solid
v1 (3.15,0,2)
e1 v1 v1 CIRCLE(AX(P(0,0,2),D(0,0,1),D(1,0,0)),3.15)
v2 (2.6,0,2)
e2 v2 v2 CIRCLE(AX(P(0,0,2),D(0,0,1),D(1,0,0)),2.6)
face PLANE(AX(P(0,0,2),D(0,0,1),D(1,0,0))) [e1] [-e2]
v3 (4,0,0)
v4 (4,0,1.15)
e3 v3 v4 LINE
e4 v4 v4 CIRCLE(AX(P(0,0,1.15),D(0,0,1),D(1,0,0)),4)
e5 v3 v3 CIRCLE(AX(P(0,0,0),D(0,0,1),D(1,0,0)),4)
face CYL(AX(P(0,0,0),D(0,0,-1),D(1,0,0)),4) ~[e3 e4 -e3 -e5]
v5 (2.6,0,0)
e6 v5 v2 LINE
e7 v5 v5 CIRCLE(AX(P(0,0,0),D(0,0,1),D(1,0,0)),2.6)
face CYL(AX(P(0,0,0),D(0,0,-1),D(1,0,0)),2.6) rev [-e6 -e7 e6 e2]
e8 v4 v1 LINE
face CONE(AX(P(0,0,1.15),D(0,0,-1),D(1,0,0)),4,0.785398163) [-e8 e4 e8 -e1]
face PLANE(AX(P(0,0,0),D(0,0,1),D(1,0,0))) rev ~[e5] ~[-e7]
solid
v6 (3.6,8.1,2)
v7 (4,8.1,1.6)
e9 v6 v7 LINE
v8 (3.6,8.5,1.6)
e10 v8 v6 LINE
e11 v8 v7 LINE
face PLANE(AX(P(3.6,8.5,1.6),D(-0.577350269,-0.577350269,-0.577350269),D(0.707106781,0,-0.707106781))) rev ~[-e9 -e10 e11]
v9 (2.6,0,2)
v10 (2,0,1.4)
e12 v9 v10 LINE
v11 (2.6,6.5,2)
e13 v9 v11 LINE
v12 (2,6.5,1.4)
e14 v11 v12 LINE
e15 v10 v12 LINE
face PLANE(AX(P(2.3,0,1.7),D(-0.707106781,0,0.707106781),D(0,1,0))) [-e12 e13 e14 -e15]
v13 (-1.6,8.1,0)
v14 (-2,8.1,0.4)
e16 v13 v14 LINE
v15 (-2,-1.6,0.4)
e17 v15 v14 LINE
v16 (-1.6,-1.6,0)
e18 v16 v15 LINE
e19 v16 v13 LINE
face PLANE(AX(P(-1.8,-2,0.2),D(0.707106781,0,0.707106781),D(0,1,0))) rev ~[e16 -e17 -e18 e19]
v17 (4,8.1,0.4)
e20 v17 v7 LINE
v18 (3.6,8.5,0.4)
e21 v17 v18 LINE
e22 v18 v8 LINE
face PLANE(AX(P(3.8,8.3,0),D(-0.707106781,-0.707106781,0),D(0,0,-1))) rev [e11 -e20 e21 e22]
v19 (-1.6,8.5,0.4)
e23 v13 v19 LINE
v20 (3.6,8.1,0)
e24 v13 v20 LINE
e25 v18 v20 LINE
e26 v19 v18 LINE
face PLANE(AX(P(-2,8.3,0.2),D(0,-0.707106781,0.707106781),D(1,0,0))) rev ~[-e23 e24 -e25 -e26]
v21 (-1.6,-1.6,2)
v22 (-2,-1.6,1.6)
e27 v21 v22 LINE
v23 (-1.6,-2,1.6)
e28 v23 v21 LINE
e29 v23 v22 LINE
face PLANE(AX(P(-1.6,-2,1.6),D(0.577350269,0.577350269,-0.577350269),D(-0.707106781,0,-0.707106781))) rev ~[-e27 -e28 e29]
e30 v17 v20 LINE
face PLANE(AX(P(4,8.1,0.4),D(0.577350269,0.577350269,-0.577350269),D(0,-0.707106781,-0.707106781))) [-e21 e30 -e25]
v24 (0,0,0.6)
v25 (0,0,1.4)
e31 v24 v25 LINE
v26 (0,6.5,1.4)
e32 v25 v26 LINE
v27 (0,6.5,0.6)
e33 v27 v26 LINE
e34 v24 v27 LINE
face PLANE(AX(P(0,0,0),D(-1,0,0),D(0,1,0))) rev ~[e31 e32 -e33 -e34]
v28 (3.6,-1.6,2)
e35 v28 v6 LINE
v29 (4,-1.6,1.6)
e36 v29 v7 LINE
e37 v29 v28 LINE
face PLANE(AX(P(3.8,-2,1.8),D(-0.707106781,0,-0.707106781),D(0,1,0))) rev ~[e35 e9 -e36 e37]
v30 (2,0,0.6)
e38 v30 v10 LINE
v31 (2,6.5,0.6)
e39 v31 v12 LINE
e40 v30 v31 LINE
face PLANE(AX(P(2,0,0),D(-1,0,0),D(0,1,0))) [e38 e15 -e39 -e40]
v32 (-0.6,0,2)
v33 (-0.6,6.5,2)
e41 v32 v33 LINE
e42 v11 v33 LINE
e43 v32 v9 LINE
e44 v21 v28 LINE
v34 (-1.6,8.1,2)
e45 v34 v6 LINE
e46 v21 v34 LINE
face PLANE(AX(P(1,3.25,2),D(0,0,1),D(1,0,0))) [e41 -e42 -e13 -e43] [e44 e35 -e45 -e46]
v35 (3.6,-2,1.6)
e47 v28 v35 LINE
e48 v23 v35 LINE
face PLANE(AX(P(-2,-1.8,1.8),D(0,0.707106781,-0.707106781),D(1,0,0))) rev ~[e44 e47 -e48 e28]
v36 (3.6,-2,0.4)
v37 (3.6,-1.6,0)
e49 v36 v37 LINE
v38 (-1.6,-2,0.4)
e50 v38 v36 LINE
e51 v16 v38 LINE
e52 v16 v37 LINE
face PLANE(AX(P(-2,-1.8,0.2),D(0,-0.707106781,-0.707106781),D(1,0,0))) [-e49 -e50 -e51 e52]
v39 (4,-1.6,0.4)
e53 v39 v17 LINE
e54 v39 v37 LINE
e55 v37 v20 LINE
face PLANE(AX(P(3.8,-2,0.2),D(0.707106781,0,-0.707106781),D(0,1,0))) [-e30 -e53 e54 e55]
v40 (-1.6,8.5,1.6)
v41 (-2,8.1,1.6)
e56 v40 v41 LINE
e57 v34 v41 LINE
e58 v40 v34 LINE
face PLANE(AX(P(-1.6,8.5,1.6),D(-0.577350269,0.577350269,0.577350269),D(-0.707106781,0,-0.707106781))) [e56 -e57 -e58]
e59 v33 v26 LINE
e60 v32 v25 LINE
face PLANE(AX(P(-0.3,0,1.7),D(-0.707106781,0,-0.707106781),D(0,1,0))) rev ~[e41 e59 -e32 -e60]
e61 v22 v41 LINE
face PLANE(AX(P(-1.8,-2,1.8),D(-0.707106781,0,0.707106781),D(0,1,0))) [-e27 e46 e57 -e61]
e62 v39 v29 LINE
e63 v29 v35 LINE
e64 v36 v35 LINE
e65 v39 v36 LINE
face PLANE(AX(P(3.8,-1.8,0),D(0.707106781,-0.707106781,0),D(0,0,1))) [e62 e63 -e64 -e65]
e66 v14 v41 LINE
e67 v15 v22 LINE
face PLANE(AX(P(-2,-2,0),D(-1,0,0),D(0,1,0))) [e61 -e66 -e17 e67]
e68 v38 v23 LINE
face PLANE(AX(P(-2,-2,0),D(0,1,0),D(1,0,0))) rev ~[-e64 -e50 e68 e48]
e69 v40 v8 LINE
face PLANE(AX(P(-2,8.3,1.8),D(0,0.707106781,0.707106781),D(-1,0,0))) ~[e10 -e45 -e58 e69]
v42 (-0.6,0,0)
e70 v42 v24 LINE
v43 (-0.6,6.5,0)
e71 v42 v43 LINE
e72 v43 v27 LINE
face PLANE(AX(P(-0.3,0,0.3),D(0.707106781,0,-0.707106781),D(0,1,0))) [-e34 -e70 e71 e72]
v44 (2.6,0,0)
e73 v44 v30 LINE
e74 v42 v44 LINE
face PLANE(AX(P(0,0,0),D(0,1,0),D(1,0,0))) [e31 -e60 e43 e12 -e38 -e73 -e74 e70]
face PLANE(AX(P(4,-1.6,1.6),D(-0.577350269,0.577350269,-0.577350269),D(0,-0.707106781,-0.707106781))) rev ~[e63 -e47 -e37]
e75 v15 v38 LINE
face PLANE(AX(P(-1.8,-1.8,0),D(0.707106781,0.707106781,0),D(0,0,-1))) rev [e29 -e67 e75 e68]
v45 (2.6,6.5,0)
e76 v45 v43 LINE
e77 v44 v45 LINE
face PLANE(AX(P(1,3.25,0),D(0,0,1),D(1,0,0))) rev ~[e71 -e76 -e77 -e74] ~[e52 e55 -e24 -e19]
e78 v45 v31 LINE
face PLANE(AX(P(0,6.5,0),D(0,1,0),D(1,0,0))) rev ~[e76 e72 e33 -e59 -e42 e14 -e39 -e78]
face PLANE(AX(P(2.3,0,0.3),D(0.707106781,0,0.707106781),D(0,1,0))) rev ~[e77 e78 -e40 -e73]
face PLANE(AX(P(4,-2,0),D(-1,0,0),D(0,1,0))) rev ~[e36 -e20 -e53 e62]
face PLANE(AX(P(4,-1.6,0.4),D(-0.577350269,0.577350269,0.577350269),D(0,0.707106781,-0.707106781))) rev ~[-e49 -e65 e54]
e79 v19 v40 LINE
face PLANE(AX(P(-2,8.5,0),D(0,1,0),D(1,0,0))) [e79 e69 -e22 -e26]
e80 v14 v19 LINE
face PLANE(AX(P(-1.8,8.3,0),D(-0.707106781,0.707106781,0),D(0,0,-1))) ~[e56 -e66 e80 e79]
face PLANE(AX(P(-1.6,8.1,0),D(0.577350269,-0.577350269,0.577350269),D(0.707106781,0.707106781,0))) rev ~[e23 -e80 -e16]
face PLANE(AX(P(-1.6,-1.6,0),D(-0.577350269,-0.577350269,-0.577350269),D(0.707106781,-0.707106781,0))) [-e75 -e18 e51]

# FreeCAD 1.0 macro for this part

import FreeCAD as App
import Part
import Sketcher
Q = App.Units.Quantity


def edges_at(feature, points):
    """Names of the edges that pass closest to the given points."""
    edges = feature.Shape.Edges
    near = lambda p: min(range(len(edges)), key=lambda i: edges[i].distToShape(Part.Vertex(*p))[0])
    return sorted({f"Edge{near(p) + 1}" for p in points})

doc = App.newDocument("Part")
params = doc.addObject("Spreadsheet::Sheet", "Params")
for row, (alias, value) in enumerate([
    ("sketch1_diameter", "8 mm"),
    ("sketch1_diameter2", "5.2 mm"),
    ("pad1_length", "2 mm"),
    ("chamfer_size", "0.85 mm"),
    ("sketch2_width", "2 mm"),
    ("sketch2_height", "6.5 mm"),
    ("pad2_length", "2 mm"),
    ("sketch3_width", "6 mm"),
    ("sketch3_height", "10.5 mm"),
    ("pad3_length", "2 mm"),
    ("chamfer2_size", "0.6 mm"),
    ("chamfer3_size", "0.4 mm"),
], start=1):
    params.set(f"A{row}", alias)
    params.set(f"B{row}", "=" + value)
    params.setAlias(f"B{row}", alias)

body = doc.addObject("PartDesign::Body", "Body")

# Sketch on XY plane
sketch1 = doc.addObject("Sketcher::SketchObject", "Sketch")
body.addObject(sketch1)
sketch1.AttachmentSupport = (doc.XY_Plane, [""])
sketch1.MapMode = "FlatFace"
sketch1.addGeometry([
    Part.Circle(App.Vector(0, 0, 0), App.Vector(0, 0, 1), 4),
    Part.Circle(App.Vector(0, 0, 0), App.Vector(0, 0, 1), 2.6),
], False)
sketch1.addConstraint([
    Sketcher.Constraint("Coincident", 0, 3, -1, 1),
    Sketcher.Constraint("Coincident", 1, 3, -1, 1),
    Sketcher.Constraint("Diameter", 0, Q("8 mm")),
    Sketcher.Constraint("Diameter", 1, Q("5.2 mm")),
])
sketch1.setExpression("Constraints[2]", "Params.sketch1_diameter")
sketch1.setExpression("Constraints[3]", "Params.sketch1_diameter2")
pad1 = doc.addObject("PartDesign::Pad", "Pad")
body.addObject(pad1)
pad1.Profile = sketch1
pad1.setExpression("Length", "Params.pad1_length")
doc.recompute()

chamfer = doc.addObject("PartDesign::Chamfer", "Chamfer")
body.addObject(chamfer)
chamfer.Base = (pad1, edges_at(pad1, [(-4, 0, 2)]))
chamfer.setExpression("Size", "Params.chamfer_size")
body2 = doc.addObject("PartDesign::Body", "Body001")

# Sketch on XY plane
sketch2 = doc.addObject("Sketcher::SketchObject", "Sketch001")
body2.addObject(sketch2)
sketch2.AttachmentSupport = (doc.getObject("XY_Plane001"), [""])
sketch2.MapMode = "FlatFace"
sketch2.addGeometry([
    Part.LineSegment(App.Vector(0, 6.5, 0), App.Vector(0, 0, 0)),
    Part.LineSegment(App.Vector(0, 0, 0), App.Vector(2, 0, 0)),
    Part.LineSegment(App.Vector(2, 0, 0), App.Vector(2, 6.5, 0)),
    Part.LineSegment(App.Vector(2, 6.5, 0), App.Vector(0, 6.5, 0)),
], False)
sketch2.addConstraint([
    Sketcher.Constraint("Coincident", 0, 2, 1, 1),
    Sketcher.Constraint("Coincident", 1, 2, 2, 1),
    Sketcher.Constraint("Coincident", 2, 2, 3, 1),
    Sketcher.Constraint("Coincident", 3, 2, 0, 1),
    Sketcher.Constraint("Vertical", 0),
    Sketcher.Constraint("Horizontal", 1),
    Sketcher.Constraint("Vertical", 2),
    Sketcher.Constraint("Horizontal", 3),
    Sketcher.Constraint("Coincident", 0, 2, -1, 1),
    Sketcher.Constraint("DistanceX", 1, 1, 1, 2, Q("2 mm")),
    Sketcher.Constraint("DistanceY", 0, 2, 0, 1, Q("6.5 mm")),
])
sketch2.setExpression("Constraints[9]", "Params.sketch2_width")
sketch2.setExpression("Constraints[10]", "Params.sketch2_height")
pad2 = doc.addObject("PartDesign::Pad", "Pad001")
body2.addObject(pad2)
pad2.Profile = sketch2
pad2.setExpression("Length", "Params.pad2_length")
body3 = doc.addObject("PartDesign::Body", "Body002")

# Sketch on XY plane
sketch3 = doc.addObject("Sketcher::SketchObject", "Sketch002")
body3.addObject(sketch3)
sketch3.AttachmentSupport = (doc.getObject("XY_Plane002"), [""])
sketch3.MapMode = "FlatFace"
sketch3.addGeometry([
    Part.LineSegment(App.Vector(-2, 8, 0), App.Vector(-2, -2, 0)),
    Part.LineSegment(App.Vector(-2, -2, 0), App.Vector(4, -2, 0)),
    Part.LineSegment(App.Vector(4, -2, 0), App.Vector(4, 8, 0)),
    Part.LineSegment(App.Vector(4, 8, 0), App.Vector(-2, 8, 0)),
], False)
sketch3.addConstraint([
    Sketcher.Constraint("Coincident", 0, 2, 1, 1),
    Sketcher.Constraint("Coincident", 1, 2, 2, 1),
    Sketcher.Constraint("Coincident", 2, 2, 3, 1),
    Sketcher.Constraint("Coincident", 3, 2, 0, 1),
    Sketcher.Constraint("Vertical", 0),
    Sketcher.Constraint("Horizontal", 1),
    Sketcher.Constraint("Vertical", 2),
    Sketcher.Constraint("Horizontal", 3),
    Sketcher.Constraint("DistanceX", 1, 1, 1, 2, Q("6 mm")),
    Sketcher.Constraint("DistanceY", 0, 2, 0, 1, Q("10.5 mm")),
    Sketcher.Constraint("DistanceX", 0, 2, -1, 1, Q("2 mm")),
    Sketcher.Constraint("DistanceY", 0, 2, -1, 1, Q("2 mm")),
])
sketch3.setExpression("Constraints[8]", "Params.sketch3_width")
sketch3.setExpression("Constraints[9]", "Params.sketch3_height")
pad3 = doc.addObject("PartDesign::Pad", "Pad002")
body3.addObject(pad3)
pad3.Profile = sketch3
pad3.setExpression("Length", "Params.pad3_length")
doc.recompute()

boolean = doc.addObject("PartDesign::Boolean", "Boolean")
body3.addObject(boolean)
boolean.Type = "Cut"
boolean.addObjects([body2])
doc.recompute()

chamfer2 = doc.addObject("PartDesign::Chamfer", "Chamfer001")
body3.addObject(chamfer2)
chamfer2.Base = (boolean, edges_at(boolean, [
    (0, 3.25, 2),
    (2, 3.25, 2),
    (0, 3.25, 0),
    (2, 3.25, 0),
]))
chamfer2.setExpression("Size", "Params.chamfer2_size")
doc.recompute()

chamfer3 = doc.addObject("PartDesign::Chamfer", "Chamfer002")
body3.addObject(chamfer3)
chamfer3.Base = (chamfer2, edges_at(chamfer2, [
    (-2, 3.25, 2),
    (1, -2, 2),
    (4, 3.25, 2),
    (1, 8.5, 2),
    (-2, -2, 1),
    (-2, 8.5, 1),
    (-2, 3.25, 0),
    (1, 8.5, 0),
    (4, 8.5, 1),
    (1, -2, 0),
    (4, -2, 1),
    (4, 3.25, 0),
]))
chamfer3.setExpression("Size", "Params.chamfer3_size")

doc.recompute()
